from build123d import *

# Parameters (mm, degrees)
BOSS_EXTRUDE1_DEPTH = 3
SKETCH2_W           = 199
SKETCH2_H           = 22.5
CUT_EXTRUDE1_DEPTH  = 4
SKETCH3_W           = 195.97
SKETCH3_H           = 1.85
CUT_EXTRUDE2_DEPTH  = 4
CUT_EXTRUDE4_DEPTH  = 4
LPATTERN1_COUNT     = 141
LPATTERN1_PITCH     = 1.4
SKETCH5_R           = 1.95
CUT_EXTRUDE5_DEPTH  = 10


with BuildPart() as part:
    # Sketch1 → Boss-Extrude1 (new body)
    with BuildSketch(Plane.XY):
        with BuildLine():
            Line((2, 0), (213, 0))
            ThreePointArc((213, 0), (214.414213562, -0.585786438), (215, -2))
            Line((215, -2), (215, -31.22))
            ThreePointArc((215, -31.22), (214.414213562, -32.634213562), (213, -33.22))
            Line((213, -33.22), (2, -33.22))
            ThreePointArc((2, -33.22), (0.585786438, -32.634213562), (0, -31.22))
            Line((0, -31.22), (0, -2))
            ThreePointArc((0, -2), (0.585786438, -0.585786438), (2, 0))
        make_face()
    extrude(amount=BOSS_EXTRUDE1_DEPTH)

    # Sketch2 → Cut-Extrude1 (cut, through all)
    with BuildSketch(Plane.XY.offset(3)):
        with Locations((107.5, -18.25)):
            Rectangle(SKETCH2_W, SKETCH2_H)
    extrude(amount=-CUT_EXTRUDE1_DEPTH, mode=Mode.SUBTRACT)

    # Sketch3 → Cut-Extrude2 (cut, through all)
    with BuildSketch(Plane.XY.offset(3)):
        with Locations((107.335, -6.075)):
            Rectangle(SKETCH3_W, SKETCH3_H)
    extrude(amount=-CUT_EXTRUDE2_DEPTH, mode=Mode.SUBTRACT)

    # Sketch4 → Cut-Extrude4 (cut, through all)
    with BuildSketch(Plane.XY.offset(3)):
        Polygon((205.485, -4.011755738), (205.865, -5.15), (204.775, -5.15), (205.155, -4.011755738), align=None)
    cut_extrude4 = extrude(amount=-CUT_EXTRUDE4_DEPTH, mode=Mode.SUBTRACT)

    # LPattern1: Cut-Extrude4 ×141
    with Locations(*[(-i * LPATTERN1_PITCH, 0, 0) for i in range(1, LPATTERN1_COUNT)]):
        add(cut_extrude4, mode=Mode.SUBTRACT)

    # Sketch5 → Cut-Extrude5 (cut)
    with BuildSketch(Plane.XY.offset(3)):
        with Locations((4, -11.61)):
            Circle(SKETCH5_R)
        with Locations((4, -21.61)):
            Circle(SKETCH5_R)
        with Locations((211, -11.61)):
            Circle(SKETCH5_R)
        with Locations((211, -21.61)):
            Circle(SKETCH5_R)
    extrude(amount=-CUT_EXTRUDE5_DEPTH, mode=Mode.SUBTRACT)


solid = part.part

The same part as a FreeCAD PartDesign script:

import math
import FreeCAD as App
import Part
import Sketcher


def add_polygon(sketch, points):
    """Adds a closed chain of lines whose ends are joined by coincident constraints."""
    first, n = sketch.GeometryCount, len(points)
    for a, b in zip(points, points[1:] + points[:1]):
        sketch.addGeometry(Part.LineSegment(App.Vector(*a, 0), App.Vector(*b, 0)), False)
    for i in range(n):
        sketch.addConstraint(Sketcher.Constraint("Coincident", first + i, 2, first + (i + 1) % n, 1))

doc = App.newDocument("Part")
body = doc.addObject("PartDesign::Body", "Body")

# Sketch on XY plane
sketch1 = body.newObject("Sketcher::SketchObject", "Sketch")
sketch1.AttachmentSupport = (doc.getObject("XY_Plane"), [""])
sketch1.MapMode = "FlatFace"
sketch1.addGeometry([
    Part.LineSegment(App.Vector(213, 0, 0), App.Vector(2, 0, 0)),  # 0
    Part.ArcOfCircle(Part.Circle(App.Vector(2, -2, 0), App.Vector(0, 0, 1), 2), math.radians(90), math.radians(180)),  # 1
    Part.LineSegment(App.Vector(0, -2, 0), App.Vector(0, -31.22, 0)),  # 2
    Part.ArcOfCircle(Part.Circle(App.Vector(2, -31.22, 0), App.Vector(0, 0, 1), 2), math.radians(-180), math.radians(-90)),  # 3
    Part.LineSegment(App.Vector(2, -33.22, 0), App.Vector(213, -33.22, 0)),  # 4
    Part.ArcOfCircle(Part.Circle(App.Vector(213, -31.22, 0), App.Vector(0, 0, 1), 2), math.radians(-90), math.radians(0)),  # 5
    Part.LineSegment(App.Vector(215, -31.22, 0), App.Vector(215, -2, 0)),  # 6
    Part.ArcOfCircle(Part.Circle(App.Vector(213, -2, 0), App.Vector(0, 0, 1), 2), math.radians(0), math.radians(90)),  # 7
], False)
sketch1.addConstraint([
    Sketcher.Constraint("Tangent", 0, 2, 1, 1),
    Sketcher.Constraint("Tangent", 1, 2, 2, 1),
    Sketcher.Constraint("Tangent", 2, 2, 3, 1),
    Sketcher.Constraint("Tangent", 3, 2, 4, 1),
    Sketcher.Constraint("Tangent", 4, 2, 5, 1),
    Sketcher.Constraint("Tangent", 5, 2, 6, 1),
    Sketcher.Constraint("Tangent", 6, 2, 7, 1),
    Sketcher.Constraint("Tangent", 7, 2, 0, 1),
    Sketcher.Constraint("Horizontal", 0),
    Sketcher.Constraint("Vertical", 2),
    Sketcher.Constraint("Horizontal", 4),
    Sketcher.Constraint("Vertical", 6),
    Sketcher.Constraint("Equal", 1, 3),
    Sketcher.Constraint("Equal", 3, 5),
    Sketcher.Constraint("Equal", 5, 7),
    Sketcher.Constraint("PointOnObject", 0, 2, -1),
    Sketcher.Constraint("PointOnObject", 1, 2, -2),
    Sketcher.Constraint("Radius", 1, 2.0),
    Sketcher.Constraint("DistanceX", 0, 2, 0, 1, 211.0),
    Sketcher.Constraint("DistanceY", 2, 2, 2, 1, 29.22),
])
pad1 = body.newObject("PartDesign::Pad", "Pad")
pad1.Profile = sketch1
pad1.Length = 3

# Sketch on XY plane
sketch2 = body.newObject("Sketcher::SketchObject", "Sketch001")
sketch2.AttachmentSupport = (doc.getObject("XY_Plane"), [""])
sketch2.MapMode = "FlatFace"
sketch2.AttachmentOffset = App.Placement(App.Vector(0, 0, 3), App.Rotation())
add_polygon(sketch2, [(8, -7), (8, -29.5), (207, -29.5), (207, -7)])  # lines 0-3
sketch2.addConstraint([
    Sketcher.Constraint("Vertical", 0),
    Sketcher.Constraint("Horizontal", 1),
    Sketcher.Constraint("Vertical", 2),
    Sketcher.Constraint("Horizontal", 3),
    Sketcher.Constraint("DistanceX", 1, 1, 1, 2, 199.0),
    Sketcher.Constraint("DistanceY", 0, 2, 0, 1, 22.5),
    Sketcher.Constraint("DistanceX", -1, 1, 0, 2, 8.0),
    Sketcher.Constraint("DistanceY", 2, 2, -1, 1, 7.0),
])
pocket1 = body.newObject("PartDesign::Pocket", "Pocket")
pocket1.Profile = sketch2
pocket1.Type = "ThroughAll"

# Sketch on XY plane
sketch3 = body.newObject("Sketcher::SketchObject", "Sketch002")
sketch3.AttachmentSupport = (doc.getObject("XY_Plane"), [""])
sketch3.MapMode = "FlatFace"
sketch3.AttachmentOffset = App.Placement(App.Vector(0, 0, 3), App.Rotation())
add_polygon(sketch3, [(9.35, -5.15), (9.35, -7), (205.32, -7), (205.32, -5.15)])  # lines 0-3
sketch3.addConstraint([
    Sketcher.Constraint("Vertical", 0),
    Sketcher.Constraint("Horizontal", 1),
    Sketcher.Constraint("Vertical", 2),
    Sketcher.Constraint("Horizontal", 3),
    Sketcher.Constraint("DistanceY", 0, 2, -1, 1, 7.0),
    Sketcher.Constraint("DistanceX", 1, 1, 1, 2, 195.97),
    Sketcher.Constraint("DistanceY", 0, 2, 0, 1, 1.85),
    Sketcher.Constraint("DistanceX", -1, 1, 0, 2, 9.35),
])
pocket2 = body.newObject("PartDesign::Pocket", "Pocket001")
pocket2.Profile = sketch3
pocket2.Type = "ThroughAll"

# Sketch on XY plane
sketch4 = body.newObject("Sketcher::SketchObject", "Sketch003")
sketch4.AttachmentSupport = (doc.getObject("XY_Plane"), [""])
sketch4.MapMode = "FlatFace"
sketch4.AttachmentOffset = App.Placement(App.Vector(0, 0, 3), App.Rotation())
add_polygon(sketch4, [(205.865, -5.15), (205.485, -4.011756), (205.155, -4.011756), (204.775, -5.15)])  # lines 0-3
sketch4.addConstraint([
    Sketcher.Constraint("Horizontal", 1),
    Sketcher.Constraint("Horizontal", 3),
    Sketcher.Constraint("Equal", 0, 2),
    Sketcher.Constraint("Distance", 0, 1.2),
    Sketcher.Constraint("DistanceX", 1, 2, 1, 1, 0.33),
    Sketcher.Constraint("DistanceX", 3, 1, 3, 2, 1.09),
    Sketcher.Constraint("DistanceY", 2, 2, -1, 1, 5.15),
    Sketcher.Constraint("DistanceX", -1, 1, 0, 2, 205.485),
])
pocket3 = body.newObject("PartDesign::Pocket", "Pocket002")
pocket3.Profile = sketch4
pocket3.Type = "ThroughAll"
doc.recompute()

linearpattern = body.newObject("PartDesign::LinearPattern", "LinearPattern")
linearpattern.Originals = [pocket3]
linearpattern.Direction = (doc.getObject("X_Axis"), [""])
linearpattern.Mode = "offset"
linearpattern.Offset = 1.4
linearpattern.Occurrences = 141
linearpattern.Reversed = True
body.Tip = linearpattern

# Sketch on XY plane
sketch5 = body.newObject("Sketcher::SketchObject", "Sketch004")
sketch5.AttachmentSupport = (doc.getObject("XY_Plane"), [""])
sketch5.MapMode = "FlatFace"
sketch5.AttachmentOffset = App.Placement(App.Vector(0, 0, 3), App.Rotation())
sketch5.addGeometry([
    Part.Circle(App.Vector(4, -11.61, 0), App.Vector(0, 0, 1), 1.95),
    Part.Circle(App.Vector(4, -21.61, 0), App.Vector(0, 0, 1), 1.95),
    Part.Circle(App.Vector(211, -11.61, 0), App.Vector(0, 0, 1), 1.95),
    Part.Circle(App.Vector(211, -21.61, 0), App.Vector(0, 0, 1), 1.95),
], False)
sketch5.addConstraint([
    Sketcher.Constraint("Equal", 0, 1),
    Sketcher.Constraint("Equal", 1, 2),
    Sketcher.Constraint("Equal", 2, 3),
    Sketcher.Constraint("Horizontal", 0, 3, 2, 3),
    Sketcher.Constraint("Horizontal", 1, 3, 3, 3),
    Sketcher.Constraint("Vertical", 0, 3, 1, 3),
    Sketcher.Constraint("Vertical", 2, 3, 3, 3),
    Sketcher.Constraint("Diameter", 0, 3.9),
    Sketcher.Constraint("DistanceX", -1, 1, 0, 3, 4.0),
    Sketcher.Constraint("DistanceX", -1, 1, 2, 3, 211.0),
    Sketcher.Constraint("DistanceY", 1, 3, 0, 3, 10.0),
    Sketcher.Constraint("DistanceY", 0, 3, -1, 1, 11.61),
])
pocket4 = body.newObject("PartDesign::Pocket", "Pocket003")
pocket4.Profile = sketch5
pocket4.Length = 10

doc.recompute()
